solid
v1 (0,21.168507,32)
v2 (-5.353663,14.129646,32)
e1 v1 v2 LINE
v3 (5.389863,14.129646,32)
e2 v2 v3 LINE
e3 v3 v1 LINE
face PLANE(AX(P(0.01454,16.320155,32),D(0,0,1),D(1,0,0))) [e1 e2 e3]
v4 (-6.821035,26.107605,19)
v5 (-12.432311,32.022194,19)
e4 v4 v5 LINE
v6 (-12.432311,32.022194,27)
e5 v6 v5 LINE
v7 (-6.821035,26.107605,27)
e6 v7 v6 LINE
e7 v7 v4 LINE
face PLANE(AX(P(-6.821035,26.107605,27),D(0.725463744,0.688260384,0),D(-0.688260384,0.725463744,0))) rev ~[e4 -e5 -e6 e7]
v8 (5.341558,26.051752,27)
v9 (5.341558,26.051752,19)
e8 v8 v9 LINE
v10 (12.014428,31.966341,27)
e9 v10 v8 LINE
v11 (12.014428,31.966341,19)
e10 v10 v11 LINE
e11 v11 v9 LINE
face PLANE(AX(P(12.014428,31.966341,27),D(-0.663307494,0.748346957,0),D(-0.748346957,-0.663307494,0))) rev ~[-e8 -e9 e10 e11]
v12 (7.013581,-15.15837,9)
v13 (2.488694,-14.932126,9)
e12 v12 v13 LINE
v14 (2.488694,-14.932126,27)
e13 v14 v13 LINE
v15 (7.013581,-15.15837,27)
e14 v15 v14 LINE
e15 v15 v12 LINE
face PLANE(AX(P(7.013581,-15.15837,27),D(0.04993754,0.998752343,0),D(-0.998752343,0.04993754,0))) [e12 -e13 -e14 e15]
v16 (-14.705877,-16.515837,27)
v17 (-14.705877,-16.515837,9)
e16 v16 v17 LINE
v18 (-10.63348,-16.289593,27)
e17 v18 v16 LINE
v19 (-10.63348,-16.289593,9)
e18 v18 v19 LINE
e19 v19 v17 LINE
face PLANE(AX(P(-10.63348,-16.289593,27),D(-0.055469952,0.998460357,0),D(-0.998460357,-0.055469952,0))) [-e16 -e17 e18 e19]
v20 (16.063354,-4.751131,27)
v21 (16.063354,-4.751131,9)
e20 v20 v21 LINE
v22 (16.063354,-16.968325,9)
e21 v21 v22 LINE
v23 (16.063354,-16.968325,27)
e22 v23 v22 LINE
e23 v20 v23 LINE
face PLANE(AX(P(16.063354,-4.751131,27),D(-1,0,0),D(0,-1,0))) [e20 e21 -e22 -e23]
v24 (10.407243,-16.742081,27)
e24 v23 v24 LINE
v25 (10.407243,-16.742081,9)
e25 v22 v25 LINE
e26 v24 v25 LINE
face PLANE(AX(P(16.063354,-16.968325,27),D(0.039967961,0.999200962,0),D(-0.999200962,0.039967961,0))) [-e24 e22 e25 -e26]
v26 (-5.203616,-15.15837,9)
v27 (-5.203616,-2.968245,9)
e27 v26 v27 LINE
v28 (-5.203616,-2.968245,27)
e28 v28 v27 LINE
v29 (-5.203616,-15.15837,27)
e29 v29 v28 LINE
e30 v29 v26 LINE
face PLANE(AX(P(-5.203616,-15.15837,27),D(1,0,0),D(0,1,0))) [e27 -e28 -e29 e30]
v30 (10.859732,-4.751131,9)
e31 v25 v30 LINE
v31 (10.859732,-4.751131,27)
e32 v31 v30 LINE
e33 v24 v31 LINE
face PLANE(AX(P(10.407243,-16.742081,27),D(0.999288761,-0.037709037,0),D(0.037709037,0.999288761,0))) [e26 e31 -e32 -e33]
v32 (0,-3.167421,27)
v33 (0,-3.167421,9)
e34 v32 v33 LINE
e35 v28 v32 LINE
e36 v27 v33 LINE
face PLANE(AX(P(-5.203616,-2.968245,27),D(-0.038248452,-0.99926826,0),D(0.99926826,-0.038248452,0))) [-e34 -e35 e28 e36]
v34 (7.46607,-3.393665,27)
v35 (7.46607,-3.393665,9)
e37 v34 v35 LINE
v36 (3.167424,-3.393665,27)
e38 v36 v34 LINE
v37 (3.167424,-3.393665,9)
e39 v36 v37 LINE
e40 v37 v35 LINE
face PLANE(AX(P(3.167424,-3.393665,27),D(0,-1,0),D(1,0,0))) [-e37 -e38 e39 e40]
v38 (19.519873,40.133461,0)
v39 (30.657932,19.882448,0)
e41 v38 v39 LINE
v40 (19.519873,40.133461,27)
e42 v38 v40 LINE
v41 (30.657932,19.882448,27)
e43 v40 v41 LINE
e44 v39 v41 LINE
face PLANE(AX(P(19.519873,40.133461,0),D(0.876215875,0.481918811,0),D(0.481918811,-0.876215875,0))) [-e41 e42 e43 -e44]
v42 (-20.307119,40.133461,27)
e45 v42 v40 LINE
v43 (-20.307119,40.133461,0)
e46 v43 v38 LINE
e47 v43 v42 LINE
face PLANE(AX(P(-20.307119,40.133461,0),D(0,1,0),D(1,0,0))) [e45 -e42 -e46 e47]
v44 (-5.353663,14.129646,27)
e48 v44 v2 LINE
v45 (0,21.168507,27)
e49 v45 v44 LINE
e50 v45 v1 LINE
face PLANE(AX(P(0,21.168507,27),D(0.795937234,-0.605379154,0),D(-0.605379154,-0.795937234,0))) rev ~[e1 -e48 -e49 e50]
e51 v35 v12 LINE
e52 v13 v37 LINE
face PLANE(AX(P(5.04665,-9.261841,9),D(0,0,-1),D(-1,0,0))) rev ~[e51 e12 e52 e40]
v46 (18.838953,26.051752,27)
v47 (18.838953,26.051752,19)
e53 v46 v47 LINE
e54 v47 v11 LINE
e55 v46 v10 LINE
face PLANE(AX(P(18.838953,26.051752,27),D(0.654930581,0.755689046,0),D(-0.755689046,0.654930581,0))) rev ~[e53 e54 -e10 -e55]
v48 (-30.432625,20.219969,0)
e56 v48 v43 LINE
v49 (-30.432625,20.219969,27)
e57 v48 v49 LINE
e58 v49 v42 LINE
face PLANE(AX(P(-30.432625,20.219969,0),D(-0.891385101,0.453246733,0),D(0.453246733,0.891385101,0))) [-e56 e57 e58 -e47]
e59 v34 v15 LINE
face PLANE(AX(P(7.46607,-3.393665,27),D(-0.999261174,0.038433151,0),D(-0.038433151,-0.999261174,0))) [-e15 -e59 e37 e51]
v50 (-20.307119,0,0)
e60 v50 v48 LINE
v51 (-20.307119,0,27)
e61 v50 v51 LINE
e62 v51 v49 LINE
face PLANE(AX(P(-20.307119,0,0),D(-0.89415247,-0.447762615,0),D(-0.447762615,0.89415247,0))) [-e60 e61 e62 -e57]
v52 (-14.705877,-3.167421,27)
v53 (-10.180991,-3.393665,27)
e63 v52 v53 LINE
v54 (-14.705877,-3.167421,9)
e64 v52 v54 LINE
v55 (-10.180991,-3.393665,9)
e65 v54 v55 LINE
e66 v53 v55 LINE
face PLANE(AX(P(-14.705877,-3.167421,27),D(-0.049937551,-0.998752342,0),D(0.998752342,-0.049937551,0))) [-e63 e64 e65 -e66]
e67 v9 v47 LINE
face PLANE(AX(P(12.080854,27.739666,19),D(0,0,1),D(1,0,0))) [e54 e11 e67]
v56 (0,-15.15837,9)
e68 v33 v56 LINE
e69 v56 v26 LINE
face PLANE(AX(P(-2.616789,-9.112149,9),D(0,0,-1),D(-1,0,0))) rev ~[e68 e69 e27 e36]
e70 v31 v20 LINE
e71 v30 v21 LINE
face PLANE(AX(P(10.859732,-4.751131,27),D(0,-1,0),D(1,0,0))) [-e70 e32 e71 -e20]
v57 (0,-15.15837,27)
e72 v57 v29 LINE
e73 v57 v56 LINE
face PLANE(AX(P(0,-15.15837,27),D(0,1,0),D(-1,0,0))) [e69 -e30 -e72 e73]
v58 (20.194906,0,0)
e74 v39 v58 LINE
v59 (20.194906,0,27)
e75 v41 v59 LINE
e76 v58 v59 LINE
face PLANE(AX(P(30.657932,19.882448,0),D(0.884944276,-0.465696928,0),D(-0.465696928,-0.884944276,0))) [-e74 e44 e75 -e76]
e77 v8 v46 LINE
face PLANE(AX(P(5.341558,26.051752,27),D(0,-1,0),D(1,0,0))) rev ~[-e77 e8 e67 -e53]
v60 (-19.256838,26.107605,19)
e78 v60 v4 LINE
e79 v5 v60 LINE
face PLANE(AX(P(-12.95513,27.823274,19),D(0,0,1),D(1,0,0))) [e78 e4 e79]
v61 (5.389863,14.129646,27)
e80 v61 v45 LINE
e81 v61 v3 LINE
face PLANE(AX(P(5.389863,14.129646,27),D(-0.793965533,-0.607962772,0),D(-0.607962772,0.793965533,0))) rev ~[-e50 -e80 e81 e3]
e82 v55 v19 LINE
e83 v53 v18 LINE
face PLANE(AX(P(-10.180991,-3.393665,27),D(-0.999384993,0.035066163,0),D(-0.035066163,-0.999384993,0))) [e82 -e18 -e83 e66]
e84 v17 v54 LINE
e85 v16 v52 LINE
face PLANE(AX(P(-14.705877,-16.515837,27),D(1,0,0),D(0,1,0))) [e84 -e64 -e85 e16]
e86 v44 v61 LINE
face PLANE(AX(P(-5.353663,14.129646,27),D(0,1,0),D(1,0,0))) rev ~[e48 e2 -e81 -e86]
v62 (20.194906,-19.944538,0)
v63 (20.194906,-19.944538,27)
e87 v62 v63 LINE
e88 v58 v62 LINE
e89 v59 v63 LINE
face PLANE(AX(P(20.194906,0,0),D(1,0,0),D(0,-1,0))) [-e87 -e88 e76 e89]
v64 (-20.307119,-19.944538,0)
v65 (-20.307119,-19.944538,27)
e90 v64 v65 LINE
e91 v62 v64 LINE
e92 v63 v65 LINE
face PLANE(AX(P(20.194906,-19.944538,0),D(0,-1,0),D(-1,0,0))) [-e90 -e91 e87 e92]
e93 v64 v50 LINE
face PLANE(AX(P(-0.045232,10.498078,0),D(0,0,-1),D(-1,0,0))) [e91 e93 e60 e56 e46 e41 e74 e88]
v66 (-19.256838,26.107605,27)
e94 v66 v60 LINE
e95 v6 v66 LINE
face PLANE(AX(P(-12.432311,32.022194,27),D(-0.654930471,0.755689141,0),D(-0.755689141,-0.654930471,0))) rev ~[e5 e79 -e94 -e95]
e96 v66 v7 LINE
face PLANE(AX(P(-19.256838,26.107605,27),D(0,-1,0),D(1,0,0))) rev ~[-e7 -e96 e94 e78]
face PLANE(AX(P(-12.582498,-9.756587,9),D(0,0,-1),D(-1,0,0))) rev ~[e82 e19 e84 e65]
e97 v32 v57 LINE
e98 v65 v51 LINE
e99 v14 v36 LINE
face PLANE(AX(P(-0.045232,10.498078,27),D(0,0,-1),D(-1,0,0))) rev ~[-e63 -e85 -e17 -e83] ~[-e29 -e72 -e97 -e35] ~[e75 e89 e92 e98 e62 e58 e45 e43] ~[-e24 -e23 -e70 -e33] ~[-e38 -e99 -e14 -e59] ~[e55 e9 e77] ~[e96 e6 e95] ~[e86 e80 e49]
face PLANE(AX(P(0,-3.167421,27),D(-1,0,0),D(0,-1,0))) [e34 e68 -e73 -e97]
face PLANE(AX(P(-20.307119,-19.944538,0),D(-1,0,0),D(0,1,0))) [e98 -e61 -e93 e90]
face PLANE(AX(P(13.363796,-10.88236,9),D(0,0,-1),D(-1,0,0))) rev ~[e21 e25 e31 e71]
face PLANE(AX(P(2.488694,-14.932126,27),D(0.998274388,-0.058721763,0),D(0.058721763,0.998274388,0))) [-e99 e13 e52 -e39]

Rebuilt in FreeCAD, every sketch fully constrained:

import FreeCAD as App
import Part
import Sketcher
from FreeCAD import Vector
Q = App.Units.Quantity


def add_polygon(sketch, points):
    """Adds a closed chain of lines whose ends are joined by coincident constraints."""
    first, n = sketch.GeometryCount, len(points)
    for a, b in zip(points, points[1:] + points[:1]):
        sketch.addGeometry(Part.LineSegment(App.Vector(*a, 0), App.Vector(*b, 0)), False)
    for i in range(n):
        sketch.addConstraint(Sketcher.Constraint("Coincident", first + i, 2, first + (i + 1) % n, 1))

doc = App.newDocument("Part")
body = doc.addObject("PartDesign::Body", "Body")

# Sketch on XY plane
sketch1 = body.newObject("Sketcher::SketchObject", "Sketch")
sketch1.AttachmentSupport = (doc.getObject("XY_Plane"), [""])
sketch1.MapMode = "FlatFace"
add_polygon(sketch1, [(19.519873, 40.133461), (-20.307119, 40.133461), (-30.432625, 20.219969), (-20.307119, 0), (-20.307119, -19.944538), (20.194906, -19.944538), (20.194906, 0), (30.657932, 19.882448)])  # lines 0-7
sketch1.addConstraint([
    Sketcher.Constraint("Horizontal", 0),
    Sketcher.Constraint("Vertical", 3),
    Sketcher.Constraint("Horizontal", 4),
    Sketcher.Constraint("Vertical", 5),
    Sketcher.Constraint("PointOnObject", 2, 2, -1),
    Sketcher.Constraint("PointOnObject", 5, 2, -1),
    Sketcher.Constraint("Vertical", 0, 2, 2, 2),
    Sketcher.Constraint("DistanceY", 3, 2, 0, 2, Q("60.077999 mm")),
    Sketcher.Constraint("Distance", 7, Q("23.111899 mm")),
    Sketcher.Constraint("DistanceY", 3, 2, 3, 1, Q("19.944538 mm")),
    Sketcher.Constraint("DistanceX", 1, 2, 7, 2, Q("49.952498 mm")),
    Sketcher.Constraint("Distance", 2, Q("22.613558 mm")),
    Sketcher.Constraint("DistanceX", 0, 2, 0, 1, Q("39.826992 mm")),
    Sketcher.Constraint("DistanceX", 4, 1, 4, 2, Q("40.502025 mm")),
    Sketcher.Constraint("DistanceX", 0, 2, -1, 1, Q("20.307119 mm")),
    Sketcher.Constraint("DistanceX", -1, 1, 6, 2, Q("30.657932 mm")),
])
pad1 = body.newObject("PartDesign::Pad", "Pad")
pad1.Profile = sketch1
pad1.Length = 27

# Sketch on XY plane
sketch2 = body.newObject("Sketcher::SketchObject", "Sketch001")
sketch2.AttachmentSupport = (doc.getObject("XY_Plane"), [""])
sketch2.MapMode = "FlatFace"
sketch2.AttachmentOffset = App.Placement(Vector(0, 0, 27), App.Rotation())
add_polygon(sketch2, [(-10.180991, -3.393665), (-14.705877, -3.167421), (-14.705877, -16.515837), (-10.63348, -16.289593)])  # lines 0-3
add_polygon(sketch2, [(0, -3.167421), (-5.203616, -2.968245), (-5.203616, -15.15837), (0, -15.15837)])  # lines 4-7
add_polygon(sketch2, [(7.46607, -3.393665), (3.167424, -3.393665), (2.488694, -14.932126), (7.013581, -15.15837)])  # lines 8-11
add_polygon(sketch2, [(16.063354, -4.751131), (10.859732, -4.751131), (10.407243, -16.742081), (16.063354, -16.968325)])  # lines 12-15
sketch2.addConstraint([
    Sketcher.Constraint("Vertical", 1),
    Sketcher.Constraint("Vertical", 5),
    Sketcher.Constraint("Horizontal", 6),
    Sketcher.Constraint("Vertical", 7),
    Sketcher.Constraint("Horizontal", 8),
    Sketcher.Constraint("Horizontal", 12),
    Sketcher.Constraint("Vertical", 15),
    Sketcher.Constraint("PointOnObject", 6, 2, -2),
    Sketcher.Constraint("Parallel", 0, 10),
    Sketcher.Constraint("Horizontal", 0, 2, 7, 2),
    Sketcher.Constraint("Horizontal", 3, 2, 8, 2),
    Sketcher.Constraint("Horizontal", 6, 2, 10, 2),
    Sketcher.Constraint("Equal", 0, 10),
    Sketcher.Constraint("DistanceY", 7, 1, 7, 2, Q("11.990949 mm")),
    Sketcher.Constraint("DistanceY", 14, 2, 9, 2, Q("2.036199 mm")),
    Sketcher.Constraint("Distance", 0, Q("4.530539 mm")),
    Sketcher.Constraint("DistanceX", 6, 1, 6, 2, Q("5.203616 mm")),
    Sketcher.Constraint("DistanceX", 8, 2, 8, 1, Q("4.298646 mm")),
    Sketcher.Constraint("DistanceX", 12, 2, 12, 1, Q("5.203622 mm")),
    Sketcher.Constraint("DistanceY", 1, 2, 1, 1, Q("13.348416 mm")),
    Sketcher.Constraint("DistanceY", 5, 2, 5, 1, Q("12.190125 mm")),
    Sketcher.Constraint("DistanceY", 15, 1, 15, 2, Q("12.217194 mm")),
    Sketcher.Constraint("DistanceY", 0, 2, -1, 1, Q("3.167421 mm")),
    Sketcher.Constraint("DistanceX", 2, 2, -1, 1, Q("10.63348 mm")),
    Sketcher.Constraint("DistanceX", 3, 2, -1, 1, Q("10.180991 mm")),
    Sketcher.Constraint("DistanceX", -1, 1, 10, 2, Q("7.013581 mm")),
    Sketcher.Constraint("DistanceX", -1, 1, 11, 2, Q("7.46607 mm")),
    Sketcher.Constraint("DistanceX", -1, 1, 12, 2, Q("10.859732 mm")),
    Sketcher.Constraint("DistanceY", 12, 2, -1, 1, Q("4.751131 mm")),
    Sketcher.Constraint("DistanceY", 13, 2, -1, 1, Q("16.742081 mm")),
    Sketcher.Constraint("DistanceY", 2, 2, 0, 2, Q("13.122172 mm")),
    Sketcher.Constraint("DistanceX", 10, 2, 13, 2, Q("3.393662 mm")),
])
pocket1 = body.newObject("PartDesign::Pocket", "Pocket")
pocket1.Profile = sketch2
pocket1.Length = 18

# Sketch on XY plane
sketch3 = body.newObject("Sketcher::SketchObject", "Sketch002")
sketch3.AttachmentSupport = (doc.getObject("XY_Plane"), [""])
sketch3.MapMode = "FlatFace"
sketch3.AttachmentOffset = App.Placement(Vector(0, 0, 27), App.Rotation())
add_polygon(sketch3, [(0, 21.168507), (-5.353663, 14.129646), (5.389863, 14.129646)])  # lines 0-2
sketch3.addConstraint([
    Sketcher.Constraint("Horizontal", 1),
    Sketcher.Constraint("PointOnObject", 2, 2, -2),
    Sketcher.Constraint("Distance", 2, Q("8.865449 mm")),
    Sketcher.Constraint("DistanceX", 1, 1, 1, 2, Q("10.743526 mm")),
    Sketcher.Constraint("DistanceY", 0, 2, 2, 2, Q("7.038861 mm")),
    Sketcher.Constraint("DistanceY", -1, 1, 0, 2, Q("14.129646 mm")),
])
pad2 = body.newObject("PartDesign::Pad", "Pad001")
pad2.Profile = sketch3
pad2.Length = 5

# Sketch on XY plane
sketch4 = body.newObject("Sketcher::SketchObject", "Sketch003")
sketch4.AttachmentSupport = (doc.getObject("XY_Plane"), [""])
sketch4.MapMode = "FlatFace"
sketch4.AttachmentOffset = App.Placement(Vector(0, 0, 27), App.Rotation())
add_polygon(sketch4, [(-12.432311, 32.022194), (-19.256838, 26.107605), (-6.821035, 26.107605)])  # lines 0-2
add_polygon(sketch4, [(12.014428, 31.966341), (5.341558, 26.051752), (18.838953, 26.051752)])  # lines 3-5
sketch4.addConstraint([
    Sketcher.Constraint("Horizontal", 1),
    Sketcher.Constraint("Horizontal", 4),
    Sketcher.Constraint("Equal", 0, 5),
    Sketcher.Constraint("Distance", 2, Q("8.152839 mm")),
    Sketcher.Constraint("DistanceX", 1, 1, 1, 2, Q("12.435803 mm")),
    Sketcher.Constraint("DistanceX", 4, 1, 4, 2, Q("13.497395 mm")),
    Sketcher.Constraint("DistanceX", 2, 2, -1, 1, Q("12.432311 mm")),
    Sketcher.Constraint("DistanceY", -1, 1, 5, 2, Q("31.966341 mm")),
    Sketcher.Constraint("DistanceY", 1, 2, 2, 2, Q("5.914589 mm")),
    Sketcher.Constraint("DistanceX", 2, 2, 3, 2, Q("17.773869 mm")),
    Sketcher.Constraint("DistanceY", 3, 2, 2, 2, Q("5.970442 mm")),
    Sketcher.Constraint("DistanceX", 3, 2, 5, 2, Q("6.67287 mm")),
])
pocket2 = body.newObject("PartDesign::Pocket", "Pocket001")
pocket2.Profile = sketch4
pocket2.Length = 8

doc.recompute()
